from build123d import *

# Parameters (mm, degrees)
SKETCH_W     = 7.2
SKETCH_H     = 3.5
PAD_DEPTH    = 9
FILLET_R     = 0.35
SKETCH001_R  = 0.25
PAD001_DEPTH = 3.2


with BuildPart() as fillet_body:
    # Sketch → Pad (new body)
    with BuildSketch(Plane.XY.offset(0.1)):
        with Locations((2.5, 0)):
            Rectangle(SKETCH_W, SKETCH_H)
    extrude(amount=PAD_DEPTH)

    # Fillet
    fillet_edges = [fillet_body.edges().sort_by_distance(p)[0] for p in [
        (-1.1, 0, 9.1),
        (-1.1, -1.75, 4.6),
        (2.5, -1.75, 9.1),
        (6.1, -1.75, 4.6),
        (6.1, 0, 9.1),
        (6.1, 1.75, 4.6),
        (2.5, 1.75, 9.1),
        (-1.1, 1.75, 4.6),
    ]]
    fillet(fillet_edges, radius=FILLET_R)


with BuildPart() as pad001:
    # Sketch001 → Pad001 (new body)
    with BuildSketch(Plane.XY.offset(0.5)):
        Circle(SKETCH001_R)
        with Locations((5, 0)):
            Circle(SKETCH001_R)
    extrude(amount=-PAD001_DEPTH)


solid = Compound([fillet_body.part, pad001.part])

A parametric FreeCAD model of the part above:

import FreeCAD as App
import Part
import Sketcher


def edges_at(feature, points):
    """Names of the edges that pass closest to the given points."""
    edges = feature.Shape.Edges
    near = lambda p: min(range(len(edges)), key=lambda i: edges[i].distToShape(Part.Vertex(*p))[0])
    return sorted({f"Edge{near(p) + 1}" for p in points})


def add_polygon(sketch, points):
    """Adds a closed chain of lines whose ends are joined by coincident constraints."""
    first, n = sketch.GeometryCount, len(points)
    for a, b in zip(points, points[1:] + points[:1]):
        sketch.addGeometry(Part.LineSegment(App.Vector(*a, 0), App.Vector(*b, 0)), False)
    for i in range(n):
        sketch.addConstraint(Sketcher.Constraint("Coincident", first + i, 2, first + (i + 1) % n, 1))

doc = App.newDocument("Part")
params = doc.addObject("Spreadsheet::Sheet", "Params")
for row, (alias, value) in enumerate([
    ("sketch1_width", "7.2 mm"),
    ("sketch1_height", "3.5 mm"),
    ("pad1_length", "9 mm"),
    ("fillet_radius", "0.35 mm"),
    ("sketch2_diameter", "0.5 mm"),
    ("pad2_length", "3.2 mm"),
], start=1):
    params.set(f"A{row}", alias)
    params.set(f"B{row}", "=" + value)
    params.setAlias(f"B{row}", alias)

body = doc.addObject("PartDesign::Body", "Body")

# Sketch on XY plane
sketch1 = body.newObject("Sketcher::SketchObject", "Sketch")
sketch1.AttachmentSupport = (doc.getObject("XY_Plane"), [""])
sketch1.MapMode = "FlatFace"
sketch1.AttachmentOffset = App.Placement(App.Vector(0, 0, 0.1), App.Rotation())
add_polygon(sketch1, [(-1.1, 1.75), (-1.1, -1.75), (6.1, -1.75), (6.1, 1.75)])  # lines 0-3
sketch1.addConstraint(Sketcher.Constraint("Vertical", 0))
sketch1.addConstraint(Sketcher.Constraint("Horizontal", 1))
sketch1.addConstraint(Sketcher.Constraint("Vertical", 2))
sketch1.addConstraint(Sketcher.Constraint("Horizontal", 3))
sketch1.addConstraint(Sketcher.Constraint("DistanceX", 1, 1, 1, 2, 7.2))
sketch1.addConstraint(Sketcher.Constraint("DistanceY", 0, 2, 0, 1, 3.5))
sketch1.addConstraint(Sketcher.Constraint("DistanceX", 0, 2, -1, 1, 1.1))
sketch1.addConstraint(Sketcher.Constraint("DistanceY", 0, 2, -1, 1, 1.75))
sketch1.setExpression("Constraints[8]", "Params.sketch1_width")
sketch1.setExpression("Constraints[9]", "Params.sketch1_height")
pad1 = body.newObject("PartDesign::Pad", "Pad")
pad1.Profile = sketch1
pad1.setExpression("Length", "Params.pad1_length")
doc.recompute()

fillet = body.newObject("PartDesign::Fillet", "Fillet")
fillet.Base = (pad1, edges_at(pad1, [
    (-1.1, 0, 9.1),
    (-1.1, -1.75, 4.6),
    (2.5, -1.75, 9.1),
    (6.1, -1.75, 4.6),
    (6.1, 0, 9.1),
    (6.1, 1.75, 4.6),
    (2.5, 1.75, 9.1),
    (-1.1, 1.75, 4.6),
]))
fillet.setExpression("Radius", "Params.fillet_radius")
body2 = doc.addObject("PartDesign::Body", "Body001")
body2.AllowCompound = True

# Sketch on XY plane
sketch2 = body2.newObject("Sketcher::SketchObject", "Sketch001")
sketch2.AttachmentSupport = (doc.getObject("XY_Plane001"), [""])
sketch2.MapMode = "FlatFace"
sketch2.AttachmentOffset = App.Placement(App.Vector(0, 0, 0.5), App.Rotation())
sketch2.addGeometry(Part.Circle(App.Vector(0, 0, 0), App.Vector(0, 0, 1), 0.25), False)
sketch2.addGeometry(Part.Circle(App.Vector(5, 0, 0), App.Vector(0, 0, 1), 0.25), False)
sketch2.addConstraint(Sketcher.Constraint("Coincident", 0, 3, -1, 1))
sketch2.addConstraint(Sketcher.Constraint("Equal", 0, 1))
sketch2.addConstraint(Sketcher.Constraint("PointOnObject", 1, 3, -1))
sketch2.addConstraint(Sketcher.Constraint("Diameter", 0, 0.5))
sketch2.addConstraint(Sketcher.Constraint("DistanceX", -1, 1, 1, 3, 5.0))
sketch2.setExpression("Constraints[3]", "Params.sketch2_diameter")
pad2 = body2.newObject("PartDesign::Pad", "Pad001")
pad2.Profile = sketch2
pad2.setExpression("Length", "Params.pad2_length")
pad2.Reversed = True

doc.recompute()
